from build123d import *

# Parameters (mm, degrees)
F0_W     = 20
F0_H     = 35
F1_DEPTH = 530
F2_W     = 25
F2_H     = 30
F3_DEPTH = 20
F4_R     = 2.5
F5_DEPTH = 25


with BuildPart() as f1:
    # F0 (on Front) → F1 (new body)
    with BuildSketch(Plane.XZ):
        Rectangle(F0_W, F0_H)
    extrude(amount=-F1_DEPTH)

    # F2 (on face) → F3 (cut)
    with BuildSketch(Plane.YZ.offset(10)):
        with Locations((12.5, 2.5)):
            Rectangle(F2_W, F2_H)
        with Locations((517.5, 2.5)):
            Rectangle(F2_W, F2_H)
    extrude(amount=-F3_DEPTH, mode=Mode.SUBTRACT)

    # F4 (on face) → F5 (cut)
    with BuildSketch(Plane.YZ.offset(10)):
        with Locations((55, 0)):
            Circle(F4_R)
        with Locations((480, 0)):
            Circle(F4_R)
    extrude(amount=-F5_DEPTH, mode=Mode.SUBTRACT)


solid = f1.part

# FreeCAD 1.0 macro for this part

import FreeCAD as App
import Part
import Sketcher
from FreeCAD import Vector


def add_polygon(sketch, points):
    """Adds a closed chain of lines whose ends are joined by coincident constraints."""
    first, n = sketch.GeometryCount, len(points)
    for a, b in zip(points, points[1:] + points[:1]):
        sketch.addGeometry(Part.LineSegment(App.Vector(*a, 0), App.Vector(*b, 0)), False)
    for i in range(n):
        sketch.addConstraint(Sketcher.Constraint("Coincident", first + i, 2, first + (i + 1) % n, 1))

doc = App.newDocument("Part")
body = doc.addObject("PartDesign::Body", "Body")

# Sketch on XZ plane
sketch1 = body.newObject("Sketcher::SketchObject", "Sketch")
sketch1.AttachmentSupport = (doc.getObject("XZ_Plane"), [""])
sketch1.MapMode = "FlatFace"
add_polygon(sketch1, [(-10, 18), (-10, -18), (10, -18), (10, 18)])  # lines 0-3
sketch1.addConstraint([
    Sketcher.Constraint("Vertical", 0),
    Sketcher.Constraint("Horizontal", 1),
    Sketcher.Constraint("Vertical", 2),
    Sketcher.Constraint("Horizontal", 3),
    Sketcher.Constraint("Symmetric", 0, 2, 2, 2, -1, 1),
    Sketcher.Constraint("DistanceX", 1, 1, 1, 2, 20.0),
    Sketcher.Constraint("DistanceY", 0, 2, 0, 1, 35.0),
])
pad1 = body.newObject("PartDesign::Pad", "Pad")
pad1.Profile = sketch1
pad1.Length = 530
pad1.Reversed = True

# Sketch on YZ plane
sketch2 = body.newObject("Sketcher::SketchObject", "Sketch001")
sketch2.AttachmentSupport = (doc.getObject("YZ_Plane"), [""])
sketch2.MapMode = "FlatFace"
sketch2.AttachmentOffset = App.Placement(Vector(0, 0, 10), App.Rotation())
add_polygon(sketch2, [(0, 18), (0, -12), (25, -12), (25, 18)])  # lines 0-3
add_polygon(sketch2, [(505, 18), (505, -12), (530, -12), (530, 18)])  # lines 4-7
sketch2.addConstraint([
    Sketcher.Constraint("Vertical", 0),
    Sketcher.Constraint("Horizontal", 1),
    Sketcher.Constraint("Vertical", 2),
    Sketcher.Constraint("Horizontal", 3),
    Sketcher.Constraint("Vertical", 4),
    Sketcher.Constraint("Horizontal", 5),
    Sketcher.Constraint("Vertical", 6),
    Sketcher.Constraint("Horizontal", 7),
    Sketcher.Constraint("PointOnObject", 0, 2, -2),
    Sketcher.Constraint("Horizontal", 1, 2, 4, 2),
    Sketcher.Constraint("Horizontal", 3, 2, 6, 2),
    Sketcher.Constraint("Equal", 3, 5),
    Sketcher.Constraint("DistanceX", 1, 1, 1, 2, 25.0),
    Sketcher.Constraint("DistanceY", 0, 2, 0, 1, 30.0),
    Sketcher.Constraint("DistanceX", -1, 1, 4, 2, 505.0),
    Sketcher.Constraint("DistanceY", 0, 2, -1, 1, 12.5),
])
pocket1 = body.newObject("PartDesign::Pocket", "Pocket")
pocket1.Profile = sketch2
pocket1.Length = 20

# Sketch on YZ plane
sketch3 = body.newObject("Sketcher::SketchObject", "Sketch002")
sketch3.AttachmentSupport = (doc.getObject("YZ_Plane"), [""])
sketch3.MapMode = "FlatFace"
sketch3.AttachmentOffset = App.Placement(Vector(0, 0, 10), App.Rotation())
sketch3.addGeometry([
    Part.Circle(Vector(55, 0, 0), Vector(0, 0, 1), 2.5),
    Part.Circle(Vector(480, 0, 0), Vector(0, 0, 1), 2.5),
], False)
sketch3.addConstraint([
    Sketcher.Constraint("Equal", 0, 1),
    Sketcher.Constraint("PointOnObject", 0, 3, -1),
    Sketcher.Constraint("PointOnObject", 1, 3, -1),
    Sketcher.Constraint("Diameter", 0, 5.0),
    Sketcher.Constraint("DistanceX", -1, 1, 0, 3, 55.0),
    Sketcher.Constraint("DistanceX", -1, 1, 1, 3, 480.0),
])
pocket2 = body.newObject("PartDesign::Pocket", "Pocket001")
pocket2.Profile = sketch3
pocket2.Length = 25

doc.recompute()
